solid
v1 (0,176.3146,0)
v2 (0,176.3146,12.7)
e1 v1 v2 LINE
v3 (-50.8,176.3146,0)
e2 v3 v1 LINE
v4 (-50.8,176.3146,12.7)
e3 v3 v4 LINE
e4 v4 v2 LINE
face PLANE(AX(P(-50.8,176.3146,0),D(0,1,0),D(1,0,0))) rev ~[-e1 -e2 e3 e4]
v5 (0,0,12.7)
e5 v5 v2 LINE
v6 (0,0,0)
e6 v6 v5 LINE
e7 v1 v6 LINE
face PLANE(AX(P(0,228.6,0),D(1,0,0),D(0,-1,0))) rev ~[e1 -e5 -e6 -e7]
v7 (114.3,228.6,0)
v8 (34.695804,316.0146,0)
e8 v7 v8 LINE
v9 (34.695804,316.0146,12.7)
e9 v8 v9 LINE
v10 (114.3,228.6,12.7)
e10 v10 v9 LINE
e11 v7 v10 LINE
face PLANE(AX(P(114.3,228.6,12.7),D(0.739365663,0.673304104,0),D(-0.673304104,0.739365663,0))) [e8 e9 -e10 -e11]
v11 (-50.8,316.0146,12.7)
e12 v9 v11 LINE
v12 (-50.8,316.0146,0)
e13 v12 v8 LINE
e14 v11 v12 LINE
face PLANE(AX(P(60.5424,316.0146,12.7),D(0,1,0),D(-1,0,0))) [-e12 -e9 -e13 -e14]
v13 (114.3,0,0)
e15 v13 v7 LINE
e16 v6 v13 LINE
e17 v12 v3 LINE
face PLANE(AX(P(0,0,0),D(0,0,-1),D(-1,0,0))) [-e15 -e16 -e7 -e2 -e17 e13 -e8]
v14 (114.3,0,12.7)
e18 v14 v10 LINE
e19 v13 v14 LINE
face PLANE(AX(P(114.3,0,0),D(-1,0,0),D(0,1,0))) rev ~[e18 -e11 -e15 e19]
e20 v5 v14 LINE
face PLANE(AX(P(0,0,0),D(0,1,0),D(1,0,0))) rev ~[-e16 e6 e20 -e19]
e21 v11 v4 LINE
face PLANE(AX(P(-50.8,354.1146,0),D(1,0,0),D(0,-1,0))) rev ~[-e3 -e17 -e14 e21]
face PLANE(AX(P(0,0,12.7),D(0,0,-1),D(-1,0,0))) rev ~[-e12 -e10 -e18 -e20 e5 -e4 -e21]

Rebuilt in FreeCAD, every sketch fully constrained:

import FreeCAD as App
import Part
import Sketcher
Q = App.Units.Quantity

doc = App.newDocument("Part")
body = doc.addObject("PartDesign::Body", "Body")

sketch1 = doc.addObject("Sketcher::SketchObject", "Sketch")
body.addObject(sketch1)
sketch1.AttachmentSupport = (doc.XY_Plane, [""])
sketch1.MapMode = "FlatFace"
sketch1.addGeometry(Part.LineSegment(App.Vector(0, 228.6, 0), App.Vector(0, 0, 0)), False)
sketch1.addGeometry(Part.LineSegment(App.Vector(0, 0, 0), App.Vector(114.3, 0, 0)), False)
sketch1.addGeometry(Part.LineSegment(App.Vector(114.3, 0, 0), App.Vector(114.3, 228.6, 0)), False)
sketch1.addGeometry(Part.LineSegment(App.Vector(114.3, 228.6, 0), App.Vector(0, 228.6, 0)), False)
sketch1.addConstraint(Sketcher.Constraint("Coincident", 0, 2, 1, 1))
sketch1.addConstraint(Sketcher.Constraint("Coincident", 1, 2, 2, 1))
sketch1.addConstraint(Sketcher.Constraint("Coincident", 2, 2, 3, 1))
sketch1.addConstraint(Sketcher.Constraint("Coincident", 3, 2, 0, 1))
sketch1.addConstraint(Sketcher.Constraint("Vertical", 0))
sketch1.addConstraint(Sketcher.Constraint("Horizontal", 1))
sketch1.addConstraint(Sketcher.Constraint("Vertical", 2))
sketch1.addConstraint(Sketcher.Constraint("Horizontal", 3))
sketch1.addConstraint(Sketcher.Constraint("Coincident", 0, 2, -1, 1))
sketch1.addConstraint(Sketcher.Constraint("DistanceY", 0, 2, 0, 1, Q("9 in")))
sketch1.addConstraint(Sketcher.Constraint("DistanceX", 1, 1, 1, 2, Q("4.5 in")))
pad1 = doc.addObject("PartDesign::Pad", "Pad")
body.addObject(pad1)
pad1.Profile = sketch1
pad1.Length = Q("0.5 in")

sketch2 = doc.addObject("Sketcher::SketchObject", "Sketch001")
body.addObject(sketch2)
sketch2.AttachmentSupport = (doc.XY_Plane, [""])
sketch2.MapMode = "FlatFace"
sketch2.AttachmentOffset = App.Placement(App.Vector(0, 0, 0.5 * 25.4), App.Rotation())
sketch2.addGeometry(Part.LineSegment(App.Vector(0, 228.6, 0), App.Vector(114.3, 228.6, 0)), False)
sketch2.addGeometry(Part.LineSegment(App.Vector(114.3, 228.6, 0), App.Vector(0, 354.1146, 0)), False)
sketch2.addGeometry(Part.LineSegment(App.Vector(0, 354.1146, 0), App.Vector(0, 228.6, 0)), False)
sketch2.addConstraint(Sketcher.Constraint("Coincident", 0, 2, 1, 1))
sketch2.addConstraint(Sketcher.Constraint("Coincident", 1, 2, 2, 1))
sketch2.addConstraint(Sketcher.Constraint("Coincident", 2, 2, 0, 1))
sketch2.addConstraint(Sketcher.Constraint("Horizontal", 0))
sketch2.addConstraint(Sketcher.Constraint("Vertical", 2))
sketch2.addConstraint(Sketcher.Constraint("PointOnObject", 1, 2, -2))
sketch2.addConstraint(Sketcher.Constraint("DistanceX", 0, 1, 0, 2, Q("4.5 in")))
sketch2.addConstraint(Sketcher.Constraint("DistanceY", -1, 1, 0, 2, Q("9 in")))
sketch2.addConstraint(Sketcher.Constraint("DistanceY", 2, 2, 2, 1, Q("125.5146 mm")))
pad2 = doc.addObject("PartDesign::Pad", "Pad001")
body.addObject(pad2)
pad2.Profile = sketch2
pad2.Length = Q("0.5 in")
pad2.Reversed = True

sketch3 = doc.addObject("Sketcher::SketchObject", "Sketch002")
body.addObject(sketch3)
sketch3.AttachmentSupport = (doc.XY_Plane, [""])
sketch3.MapMode = "FlatFace"
sketch3.addGeometry(Part.LineSegment(App.Vector(-50.8, 354.1146, 0), App.Vector(0, 354.1146, 0)), False)
sketch3.addGeometry(Part.LineSegment(App.Vector(0, 354.1146, 0), App.Vector(0, 176.3146, 0)), False)
sketch3.addGeometry(Part.LineSegment(App.Vector(0, 176.3146, 0), App.Vector(-50.8, 176.3146, 0)), False)
sketch3.addGeometry(Part.LineSegment(App.Vector(-50.8, 176.3146, 0), App.Vector(-50.8, 354.1146, 0)), False)
sketch3.addConstraint(Sketcher.Constraint("Coincident", 0, 2, 1, 1))
sketch3.addConstraint(Sketcher.Constraint("Coincident", 1, 2, 2, 1))
sketch3.addConstraint(Sketcher.Constraint("Coincident", 2, 2, 3, 1))
sketch3.addConstraint(Sketcher.Constraint("Coincident", 3, 2, 0, 1))
sketch3.addConstraint(Sketcher.Constraint("Horizontal", 0))
sketch3.addConstraint(Sketcher.Constraint("Vertical", 1))
sketch3.addConstraint(Sketcher.Constraint("Horizontal", 2))
sketch3.addConstraint(Sketcher.Constraint("Vertical", 3))
sketch3.addConstraint(Sketcher.Constraint("PointOnObject", 0, 2, -2))
sketch3.addConstraint(Sketcher.Constraint("DistanceX", 0, 1, 0, 2, Q("2 in")))
sketch3.addConstraint(Sketcher.Constraint("DistanceY", 1, 2, 1, 1, Q("7 in")))
sketch3.addConstraint(Sketcher.Constraint("DistanceY", -1, 1, 0, 2, Q("354.1146 mm")))
pad3 = doc.addObject("PartDesign::Pad", "Pad002")
body.addObject(pad3)
pad3.Profile = sketch3
pad3.Length = Q("0.5 in")

sketch4 = doc.addObject("Sketcher::SketchObject", "Sketch003")
body.addObject(sketch4)
sketch4.AttachmentSupport = (doc.XY_Plane, [""])
sketch4.MapMode = "FlatFace"
sketch4.AttachmentOffset = App.Placement(App.Vector(0, 0, 0.5 * 25.4), App.Rotation())
sketch4.addGeometry(Part.LineSegment(App.Vector(60.5424, 354.1146, 0), App.Vector(-50.8, 354.1146, 0)), False)
sketch4.addGeometry(Part.LineSegment(App.Vector(-50.8, 354.1146, 0), App.Vector(-50.8, 316.0146, 0)), False)
sketch4.addGeometry(Part.LineSegment(App.Vector(-50.8, 316.0146, 0), App.Vector(60.5424, 316.0146, 0)), False)
sketch4.addGeometry(Part.LineSegment(App.Vector(60.5424, 316.0146, 0), App.Vector(60.5424, 354.1146, 0)), False)
sketch4.addConstraint(Sketcher.Constraint("Coincident", 0, 2, 1, 1))
sketch4.addConstraint(Sketcher.Constraint("Coincident", 1, 2, 2, 1))
sketch4.addConstraint(Sketcher.Constraint("Coincident", 2, 2, 3, 1))
sketch4.addConstraint(Sketcher.Constraint("Coincident", 3, 2, 0, 1))
sketch4.addConstraint(Sketcher.Constraint("Horizontal", 0))
sketch4.addConstraint(Sketcher.Constraint("Vertical", 1))
sketch4.addConstraint(Sketcher.Constraint("Horizontal", 2))
sketch4.addConstraint(Sketcher.Constraint("Vertical", 3))
sketch4.addConstraint(Sketcher.Constraint("DistanceY", 1, 2, 1, 1, Q("1.5 in")))
sketch4.addConstraint(Sketcher.Constraint("DistanceX", 0, 2, -1, 1, Q("2 in")))
sketch4.addConstraint(Sketcher.Constraint("DistanceX", 0, 2, 0, 1, Q("111.3424 mm")))
sketch4.addConstraint(Sketcher.Constraint("DistanceY", -1, 1, 0, 2, Q("354.1146 mm")))
pocket1 = doc.addObject("PartDesign::Pocket", "Pocket")
body.addObject(pocket1)
pocket1.Profile = sketch4
pocket1.Length = Q("1 in")

doc.recompute()
